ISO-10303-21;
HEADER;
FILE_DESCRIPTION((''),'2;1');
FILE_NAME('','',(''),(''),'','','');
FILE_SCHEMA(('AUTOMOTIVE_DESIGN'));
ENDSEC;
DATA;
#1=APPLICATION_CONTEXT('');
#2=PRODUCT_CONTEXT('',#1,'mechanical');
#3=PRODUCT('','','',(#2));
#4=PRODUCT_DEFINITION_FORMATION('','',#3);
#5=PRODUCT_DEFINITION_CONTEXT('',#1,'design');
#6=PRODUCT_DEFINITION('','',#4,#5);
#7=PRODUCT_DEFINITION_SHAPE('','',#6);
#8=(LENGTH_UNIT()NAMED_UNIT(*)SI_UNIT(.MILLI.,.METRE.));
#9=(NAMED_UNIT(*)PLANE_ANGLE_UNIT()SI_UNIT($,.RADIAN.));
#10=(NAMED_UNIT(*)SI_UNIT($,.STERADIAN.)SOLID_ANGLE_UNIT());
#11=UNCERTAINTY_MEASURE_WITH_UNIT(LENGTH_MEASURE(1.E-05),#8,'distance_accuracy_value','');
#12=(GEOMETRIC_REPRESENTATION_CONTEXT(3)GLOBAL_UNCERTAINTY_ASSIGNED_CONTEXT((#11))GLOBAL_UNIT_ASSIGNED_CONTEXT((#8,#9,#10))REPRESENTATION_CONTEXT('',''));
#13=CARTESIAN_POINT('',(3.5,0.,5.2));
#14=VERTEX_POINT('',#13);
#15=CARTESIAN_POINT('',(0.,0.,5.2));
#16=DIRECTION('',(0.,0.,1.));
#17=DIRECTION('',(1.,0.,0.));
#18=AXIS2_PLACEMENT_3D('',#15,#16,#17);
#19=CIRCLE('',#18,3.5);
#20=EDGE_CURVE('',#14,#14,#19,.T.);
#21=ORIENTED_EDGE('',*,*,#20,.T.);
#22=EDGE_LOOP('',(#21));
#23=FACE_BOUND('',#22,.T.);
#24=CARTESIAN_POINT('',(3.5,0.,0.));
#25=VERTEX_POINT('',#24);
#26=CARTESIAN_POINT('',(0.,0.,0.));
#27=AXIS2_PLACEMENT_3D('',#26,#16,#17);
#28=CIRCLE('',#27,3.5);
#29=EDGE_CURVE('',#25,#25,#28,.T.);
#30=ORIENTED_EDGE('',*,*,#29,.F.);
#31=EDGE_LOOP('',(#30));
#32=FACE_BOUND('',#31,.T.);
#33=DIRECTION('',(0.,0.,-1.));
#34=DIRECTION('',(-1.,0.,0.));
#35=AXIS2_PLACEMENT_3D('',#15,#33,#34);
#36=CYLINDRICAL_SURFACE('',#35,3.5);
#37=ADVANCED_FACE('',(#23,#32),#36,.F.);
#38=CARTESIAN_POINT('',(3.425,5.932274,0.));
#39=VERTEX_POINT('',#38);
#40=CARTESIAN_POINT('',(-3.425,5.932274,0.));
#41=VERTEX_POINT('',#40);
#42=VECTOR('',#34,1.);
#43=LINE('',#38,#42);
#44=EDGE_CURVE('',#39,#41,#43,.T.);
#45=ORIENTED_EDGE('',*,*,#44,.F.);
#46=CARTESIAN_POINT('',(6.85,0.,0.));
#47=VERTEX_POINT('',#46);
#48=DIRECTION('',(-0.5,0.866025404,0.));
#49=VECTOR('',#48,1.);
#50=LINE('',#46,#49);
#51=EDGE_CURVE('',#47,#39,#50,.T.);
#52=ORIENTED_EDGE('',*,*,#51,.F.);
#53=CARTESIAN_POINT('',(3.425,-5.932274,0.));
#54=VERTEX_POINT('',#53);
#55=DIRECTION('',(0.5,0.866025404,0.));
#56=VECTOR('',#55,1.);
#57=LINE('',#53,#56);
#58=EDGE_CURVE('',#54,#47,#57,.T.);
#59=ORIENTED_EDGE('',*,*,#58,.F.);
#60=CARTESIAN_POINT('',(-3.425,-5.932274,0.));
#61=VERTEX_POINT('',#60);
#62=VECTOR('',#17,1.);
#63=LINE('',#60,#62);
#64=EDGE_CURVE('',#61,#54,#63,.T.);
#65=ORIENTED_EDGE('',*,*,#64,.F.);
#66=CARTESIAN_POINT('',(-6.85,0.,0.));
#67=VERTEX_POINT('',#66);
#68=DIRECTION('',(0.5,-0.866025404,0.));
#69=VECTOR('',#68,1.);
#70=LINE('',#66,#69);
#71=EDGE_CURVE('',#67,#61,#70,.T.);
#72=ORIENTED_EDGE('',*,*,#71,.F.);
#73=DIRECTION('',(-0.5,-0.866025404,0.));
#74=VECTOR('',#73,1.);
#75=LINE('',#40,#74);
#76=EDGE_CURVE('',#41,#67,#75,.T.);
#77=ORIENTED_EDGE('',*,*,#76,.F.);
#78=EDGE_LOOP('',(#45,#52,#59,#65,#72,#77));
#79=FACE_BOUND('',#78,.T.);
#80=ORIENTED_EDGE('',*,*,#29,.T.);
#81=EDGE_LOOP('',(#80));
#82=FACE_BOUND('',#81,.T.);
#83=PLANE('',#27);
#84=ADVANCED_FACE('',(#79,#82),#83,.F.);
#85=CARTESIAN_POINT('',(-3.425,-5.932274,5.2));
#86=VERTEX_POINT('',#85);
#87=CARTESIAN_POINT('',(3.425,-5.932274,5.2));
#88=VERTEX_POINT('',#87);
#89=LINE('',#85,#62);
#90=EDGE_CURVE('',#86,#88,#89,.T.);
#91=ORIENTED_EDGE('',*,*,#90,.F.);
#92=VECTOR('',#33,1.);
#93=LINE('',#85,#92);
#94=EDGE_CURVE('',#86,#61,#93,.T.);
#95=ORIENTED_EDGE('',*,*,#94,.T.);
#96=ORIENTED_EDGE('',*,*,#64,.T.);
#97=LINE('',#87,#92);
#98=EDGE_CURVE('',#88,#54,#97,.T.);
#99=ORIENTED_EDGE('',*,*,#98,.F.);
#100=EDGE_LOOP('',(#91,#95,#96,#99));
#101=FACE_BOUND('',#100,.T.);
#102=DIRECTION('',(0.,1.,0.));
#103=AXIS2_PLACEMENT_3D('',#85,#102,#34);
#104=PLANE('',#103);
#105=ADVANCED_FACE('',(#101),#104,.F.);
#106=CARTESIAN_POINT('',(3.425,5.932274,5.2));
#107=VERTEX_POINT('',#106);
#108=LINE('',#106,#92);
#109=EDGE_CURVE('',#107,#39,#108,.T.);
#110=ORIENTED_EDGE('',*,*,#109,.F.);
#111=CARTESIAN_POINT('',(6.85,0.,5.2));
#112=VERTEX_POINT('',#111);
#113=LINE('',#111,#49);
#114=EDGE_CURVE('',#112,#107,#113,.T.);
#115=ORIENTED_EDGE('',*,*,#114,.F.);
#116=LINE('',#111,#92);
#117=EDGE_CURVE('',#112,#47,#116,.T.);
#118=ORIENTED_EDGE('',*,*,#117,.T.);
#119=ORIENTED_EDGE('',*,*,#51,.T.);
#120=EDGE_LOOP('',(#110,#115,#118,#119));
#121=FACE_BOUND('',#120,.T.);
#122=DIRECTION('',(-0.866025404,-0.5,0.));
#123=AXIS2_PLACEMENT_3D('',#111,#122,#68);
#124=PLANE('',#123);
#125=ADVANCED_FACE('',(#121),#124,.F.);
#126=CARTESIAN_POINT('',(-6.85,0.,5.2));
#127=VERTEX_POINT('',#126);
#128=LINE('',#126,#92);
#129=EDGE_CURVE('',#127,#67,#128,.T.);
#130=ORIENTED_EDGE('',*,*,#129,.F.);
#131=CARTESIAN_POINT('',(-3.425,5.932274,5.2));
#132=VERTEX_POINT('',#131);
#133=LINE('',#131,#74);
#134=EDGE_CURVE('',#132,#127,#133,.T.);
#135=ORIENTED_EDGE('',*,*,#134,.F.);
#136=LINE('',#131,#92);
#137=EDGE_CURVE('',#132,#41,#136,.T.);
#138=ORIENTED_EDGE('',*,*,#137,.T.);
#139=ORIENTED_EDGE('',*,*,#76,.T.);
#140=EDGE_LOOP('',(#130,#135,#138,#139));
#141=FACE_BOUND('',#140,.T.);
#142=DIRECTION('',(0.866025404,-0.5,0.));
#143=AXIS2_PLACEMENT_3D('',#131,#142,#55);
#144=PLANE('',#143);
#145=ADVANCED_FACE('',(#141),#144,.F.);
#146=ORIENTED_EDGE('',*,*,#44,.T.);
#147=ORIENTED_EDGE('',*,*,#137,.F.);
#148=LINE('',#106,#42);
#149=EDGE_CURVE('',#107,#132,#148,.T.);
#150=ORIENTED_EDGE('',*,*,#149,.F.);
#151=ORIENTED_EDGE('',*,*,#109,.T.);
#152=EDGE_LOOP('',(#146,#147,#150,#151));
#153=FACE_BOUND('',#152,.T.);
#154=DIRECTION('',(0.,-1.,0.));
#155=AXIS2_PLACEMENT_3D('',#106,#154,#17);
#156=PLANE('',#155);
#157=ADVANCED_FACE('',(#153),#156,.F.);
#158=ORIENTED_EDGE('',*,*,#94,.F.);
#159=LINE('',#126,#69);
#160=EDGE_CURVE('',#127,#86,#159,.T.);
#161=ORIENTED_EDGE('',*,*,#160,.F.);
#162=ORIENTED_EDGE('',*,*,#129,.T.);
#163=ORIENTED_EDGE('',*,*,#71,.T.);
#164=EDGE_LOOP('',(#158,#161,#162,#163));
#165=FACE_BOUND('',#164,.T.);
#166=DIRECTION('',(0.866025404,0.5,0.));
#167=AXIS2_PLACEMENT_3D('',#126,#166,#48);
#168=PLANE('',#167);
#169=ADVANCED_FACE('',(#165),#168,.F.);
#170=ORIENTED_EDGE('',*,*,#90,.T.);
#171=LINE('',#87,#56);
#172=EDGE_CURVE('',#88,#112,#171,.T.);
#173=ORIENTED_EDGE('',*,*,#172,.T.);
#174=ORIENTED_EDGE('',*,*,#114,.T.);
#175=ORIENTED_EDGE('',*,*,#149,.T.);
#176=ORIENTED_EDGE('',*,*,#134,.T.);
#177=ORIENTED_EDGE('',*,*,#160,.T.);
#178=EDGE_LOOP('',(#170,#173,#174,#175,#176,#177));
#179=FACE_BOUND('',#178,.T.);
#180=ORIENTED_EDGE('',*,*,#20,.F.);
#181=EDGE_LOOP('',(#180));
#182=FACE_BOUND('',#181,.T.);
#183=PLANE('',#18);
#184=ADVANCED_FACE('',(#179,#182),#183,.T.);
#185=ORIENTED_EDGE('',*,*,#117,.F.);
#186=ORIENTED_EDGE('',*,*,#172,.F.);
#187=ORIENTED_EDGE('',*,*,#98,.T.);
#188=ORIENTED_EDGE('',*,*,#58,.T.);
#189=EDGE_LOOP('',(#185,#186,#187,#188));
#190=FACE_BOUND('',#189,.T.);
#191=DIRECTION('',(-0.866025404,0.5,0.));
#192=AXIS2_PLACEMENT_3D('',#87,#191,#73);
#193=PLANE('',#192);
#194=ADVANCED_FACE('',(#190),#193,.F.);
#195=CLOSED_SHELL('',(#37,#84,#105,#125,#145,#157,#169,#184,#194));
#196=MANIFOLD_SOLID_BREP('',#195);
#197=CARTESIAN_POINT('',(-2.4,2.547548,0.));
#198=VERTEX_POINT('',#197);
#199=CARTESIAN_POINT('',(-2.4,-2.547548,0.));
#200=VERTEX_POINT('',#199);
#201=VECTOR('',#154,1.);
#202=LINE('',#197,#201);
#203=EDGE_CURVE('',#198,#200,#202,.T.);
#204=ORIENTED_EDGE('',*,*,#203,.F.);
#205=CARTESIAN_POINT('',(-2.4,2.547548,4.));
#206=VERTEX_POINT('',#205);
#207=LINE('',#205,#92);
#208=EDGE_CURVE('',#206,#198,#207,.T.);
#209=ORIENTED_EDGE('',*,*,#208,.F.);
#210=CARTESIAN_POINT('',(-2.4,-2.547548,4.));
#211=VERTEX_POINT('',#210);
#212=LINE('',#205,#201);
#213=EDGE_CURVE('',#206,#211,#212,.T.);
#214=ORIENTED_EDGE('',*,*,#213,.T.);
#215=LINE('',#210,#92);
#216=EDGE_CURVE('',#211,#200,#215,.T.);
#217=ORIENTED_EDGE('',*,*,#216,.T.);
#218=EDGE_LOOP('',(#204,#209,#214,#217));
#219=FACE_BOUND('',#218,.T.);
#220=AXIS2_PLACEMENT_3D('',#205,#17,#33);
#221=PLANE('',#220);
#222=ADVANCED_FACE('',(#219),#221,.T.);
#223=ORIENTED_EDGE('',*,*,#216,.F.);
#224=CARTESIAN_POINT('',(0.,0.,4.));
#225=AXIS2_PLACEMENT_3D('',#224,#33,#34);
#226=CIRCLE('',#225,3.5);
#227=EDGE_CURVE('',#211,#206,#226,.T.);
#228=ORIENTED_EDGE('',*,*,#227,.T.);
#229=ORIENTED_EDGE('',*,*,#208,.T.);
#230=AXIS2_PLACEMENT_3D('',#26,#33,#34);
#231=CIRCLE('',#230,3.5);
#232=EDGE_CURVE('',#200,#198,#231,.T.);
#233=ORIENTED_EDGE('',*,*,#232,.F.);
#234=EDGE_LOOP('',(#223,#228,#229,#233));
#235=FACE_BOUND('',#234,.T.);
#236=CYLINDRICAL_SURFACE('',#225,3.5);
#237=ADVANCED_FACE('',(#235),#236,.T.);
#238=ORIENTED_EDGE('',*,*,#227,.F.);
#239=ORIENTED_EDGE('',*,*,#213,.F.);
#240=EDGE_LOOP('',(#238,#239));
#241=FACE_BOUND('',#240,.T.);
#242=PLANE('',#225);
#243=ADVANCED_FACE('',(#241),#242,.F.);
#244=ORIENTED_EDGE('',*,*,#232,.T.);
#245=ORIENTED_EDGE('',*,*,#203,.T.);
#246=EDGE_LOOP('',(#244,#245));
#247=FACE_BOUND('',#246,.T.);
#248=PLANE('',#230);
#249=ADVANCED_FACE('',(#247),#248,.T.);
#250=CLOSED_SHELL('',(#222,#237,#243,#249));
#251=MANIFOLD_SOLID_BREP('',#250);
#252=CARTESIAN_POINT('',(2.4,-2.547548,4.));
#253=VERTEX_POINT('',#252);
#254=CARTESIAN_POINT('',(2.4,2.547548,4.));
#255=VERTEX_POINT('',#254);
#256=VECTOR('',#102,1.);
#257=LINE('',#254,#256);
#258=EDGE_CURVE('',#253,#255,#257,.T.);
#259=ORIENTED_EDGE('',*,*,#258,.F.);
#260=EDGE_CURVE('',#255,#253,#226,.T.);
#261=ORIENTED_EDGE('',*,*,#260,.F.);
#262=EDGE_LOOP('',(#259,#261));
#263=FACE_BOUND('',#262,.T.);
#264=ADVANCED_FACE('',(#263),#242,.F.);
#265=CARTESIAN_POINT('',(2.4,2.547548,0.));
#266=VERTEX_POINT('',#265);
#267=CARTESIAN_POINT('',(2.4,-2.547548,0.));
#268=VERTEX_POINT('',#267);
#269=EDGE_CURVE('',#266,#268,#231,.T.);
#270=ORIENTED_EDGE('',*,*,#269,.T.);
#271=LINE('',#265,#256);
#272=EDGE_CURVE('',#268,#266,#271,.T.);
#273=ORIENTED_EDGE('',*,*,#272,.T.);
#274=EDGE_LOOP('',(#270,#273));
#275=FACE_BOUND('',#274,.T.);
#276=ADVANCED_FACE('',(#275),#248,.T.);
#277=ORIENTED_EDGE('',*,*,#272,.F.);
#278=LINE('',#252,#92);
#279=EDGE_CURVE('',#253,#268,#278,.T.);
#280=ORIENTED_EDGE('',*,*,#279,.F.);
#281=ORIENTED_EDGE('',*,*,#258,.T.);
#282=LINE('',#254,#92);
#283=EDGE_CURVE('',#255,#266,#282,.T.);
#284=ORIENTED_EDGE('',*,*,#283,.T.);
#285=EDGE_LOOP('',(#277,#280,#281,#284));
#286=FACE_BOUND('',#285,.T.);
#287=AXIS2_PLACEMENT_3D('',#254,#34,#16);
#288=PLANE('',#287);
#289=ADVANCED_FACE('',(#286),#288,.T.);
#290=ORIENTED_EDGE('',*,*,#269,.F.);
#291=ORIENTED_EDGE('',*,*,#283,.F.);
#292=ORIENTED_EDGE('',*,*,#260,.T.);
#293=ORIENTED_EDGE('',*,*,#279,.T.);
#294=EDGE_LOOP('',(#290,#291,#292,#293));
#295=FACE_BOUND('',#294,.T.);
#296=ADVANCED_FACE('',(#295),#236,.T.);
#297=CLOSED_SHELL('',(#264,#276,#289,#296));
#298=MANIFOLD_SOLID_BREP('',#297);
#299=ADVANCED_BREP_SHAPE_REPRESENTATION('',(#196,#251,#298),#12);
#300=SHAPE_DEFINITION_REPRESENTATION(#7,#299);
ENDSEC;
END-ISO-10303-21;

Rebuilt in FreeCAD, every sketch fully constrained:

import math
import FreeCAD as App
import Part
import Sketcher

V = App.Vector
Q = App.Units.Quantity

doc = App.newDocument("Part")
body = doc.addObject("PartDesign::Body", "Body")

# Sketch on XY plane
sketch1 = doc.addObject("Sketcher::SketchObject", "Sketch")
body.addObject(sketch1)
sketch1.AttachmentSupport = (doc.XY_Plane, [""])
sketch1.MapMode = "FlatFace"
sketch1.addGeometry(Part.LineSegment(V(6.8, 0, 0), V(3.4, 5.9, 0)), False)
sketch1.addGeometry(Part.LineSegment(V(3.4, 5.9, 0), V(-3.4, 5.9, 0)), False)
sketch1.addGeometry(Part.LineSegment(V(-3.4, 5.9, 0), V(-6.8, 0, 0)), False)
sketch1.addGeometry(Part.LineSegment(V(-6.8, 0, 0), V(-3.4, -5.9, 0)), False)
sketch1.addGeometry(Part.LineSegment(V(-3.4, -5.9, 0), V(3.4, -5.9, 0)), False)
sketch1.addGeometry(Part.LineSegment(V(3.4, -5.9, 0), V(6.8, 0, 0)), False)
sketch1.addGeometry(Part.Circle(V(0, 0, 0), V(0, 0, 1), 3.5), False)
sketch1.addConstraint(Sketcher.Constraint("Coincident", 0, 2, 1, 1))
sketch1.addConstraint(Sketcher.Constraint("Coincident", 1, 2, 2, 1))
sketch1.addConstraint(Sketcher.Constraint("Coincident", 2, 2, 3, 1))
sketch1.addConstraint(Sketcher.Constraint("Coincident", 3, 2, 4, 1))
sketch1.addConstraint(Sketcher.Constraint("Coincident", 4, 2, 5, 1))
sketch1.addConstraint(Sketcher.Constraint("Coincident", 5, 2, 0, 1))
sketch1.addConstraint(Sketcher.Constraint("Horizontal", 1))
sketch1.addConstraint(Sketcher.Constraint("Horizontal", 4))
sketch1.addConstraint(Sketcher.Constraint("Coincident", 6, 3, -1, 1))
sketch1.addConstraint(Sketcher.Constraint("Symmetric", 0, 2, 3, 2, -1, 1))
sketch1.addConstraint(Sketcher.Constraint("Symmetric", 2, 2, 5, 2, -1, 1))
sketch1.addConstraint(Sketcher.Constraint("PointOnObject", 2, 2, -1))
sketch1.addConstraint(Sketcher.Constraint("Parallel", 2, 5))
sketch1.addConstraint(Sketcher.Constraint("Vertical", 1, 2, 3, 2))
sketch1.addConstraint(Sketcher.Constraint("Diameter", 6, Q("7 mm")))
sketch1.addConstraint(Sketcher.Constraint("Angle", 0, Q("120 deg")))
sketch1.addConstraint(Sketcher.Constraint("DistanceX", 1, 2, 1, 1, Q("6.85 mm")))
sketch1.addConstraint(Sketcher.Constraint("Distance", 0, Q("6.85 mm")))
pad1 = doc.addObject("PartDesign::Pad", "Pad")
body.addObject(pad1)
pad1.Profile = sketch1
pad1.Length = 5.2
body2 = doc.addObject("PartDesign::Body", "Body001")

# Sketch on XY plane
sketch2 = doc.addObject("Sketcher::SketchObject", "Sketch001")
body2.addObject(sketch2)
sketch2.AttachmentSupport = (doc.getObject("XY_Plane001"), [""])
sketch2.MapMode = "FlatFace"
sketch2.addGeometry(Part.LineSegment(V(-2.4, 2.5, 0), V(-2.4, -2.5, 0)), False)
sketch2.addGeometry(Part.ArcOfCircle(Part.Circle(V(0, 0, 0), V(0, 0, 1), 3.5), math.radians(133), math.radians(227)), False)
sketch2.addConstraint(Sketcher.Constraint("Coincident", 0, 1, 1, 1))
sketch2.addConstraint(Sketcher.Constraint("Coincident", 1, 2, 0, 2))
sketch2.addConstraint(Sketcher.Constraint("Vertical", 0))
sketch2.addConstraint(Sketcher.Constraint("Coincident", 1, 3, -1, 1))
sketch2.addConstraint(Sketcher.Constraint("Radius", 1, Q("3.5 mm")))
sketch2.addConstraint(Sketcher.Constraint("DistanceX", 0, 1, -1, 1, Q("2.4 mm")))
pad2 = doc.addObject("PartDesign::Pad", "Pad001")
body2.addObject(pad2)
pad2.Profile = sketch2
pad2.Length = 4
body3 = doc.addObject("PartDesign::Body", "Body002")

# Sketch on XY plane
sketch3 = doc.addObject("Sketcher::SketchObject", "Sketch002")
body3.addObject(sketch3)
sketch3.AttachmentSupport = (doc.getObject("XY_Plane002"), [""])
sketch3.MapMode = "FlatFace"
sketch3.addGeometry(Part.LineSegment(V(2.4, -2.5, 0), V(2.4, 2.5, 0)), False)
sketch3.addGeometry(Part.ArcOfCircle(Part.Circle(V(0, 0, 0), V(0, 0, 1), 3.5), math.radians(-47), math.radians(47)), False)
sketch3.addConstraint(Sketcher.Constraint("Coincident", 0, 1, 1, 1))
sketch3.addConstraint(Sketcher.Constraint("Coincident", 1, 2, 0, 2))
sketch3.addConstraint(Sketcher.Constraint("Vertical", 0))
sketch3.addConstraint(Sketcher.Constraint("Coincident", 1, 3, -1, 1))
sketch3.addConstraint(Sketcher.Constraint("Radius", 1, Q("3.5 mm")))
sketch3.addConstraint(Sketcher.Constraint("DistanceX", -1, 1, 0, 1, Q("2.4 mm")))
pad3 = doc.addObject("PartDesign::Pad", "Pad002")
body3.addObject(pad3)
pad3.Profile = sketch3
pad3.Length = 4

doc.recompute()
